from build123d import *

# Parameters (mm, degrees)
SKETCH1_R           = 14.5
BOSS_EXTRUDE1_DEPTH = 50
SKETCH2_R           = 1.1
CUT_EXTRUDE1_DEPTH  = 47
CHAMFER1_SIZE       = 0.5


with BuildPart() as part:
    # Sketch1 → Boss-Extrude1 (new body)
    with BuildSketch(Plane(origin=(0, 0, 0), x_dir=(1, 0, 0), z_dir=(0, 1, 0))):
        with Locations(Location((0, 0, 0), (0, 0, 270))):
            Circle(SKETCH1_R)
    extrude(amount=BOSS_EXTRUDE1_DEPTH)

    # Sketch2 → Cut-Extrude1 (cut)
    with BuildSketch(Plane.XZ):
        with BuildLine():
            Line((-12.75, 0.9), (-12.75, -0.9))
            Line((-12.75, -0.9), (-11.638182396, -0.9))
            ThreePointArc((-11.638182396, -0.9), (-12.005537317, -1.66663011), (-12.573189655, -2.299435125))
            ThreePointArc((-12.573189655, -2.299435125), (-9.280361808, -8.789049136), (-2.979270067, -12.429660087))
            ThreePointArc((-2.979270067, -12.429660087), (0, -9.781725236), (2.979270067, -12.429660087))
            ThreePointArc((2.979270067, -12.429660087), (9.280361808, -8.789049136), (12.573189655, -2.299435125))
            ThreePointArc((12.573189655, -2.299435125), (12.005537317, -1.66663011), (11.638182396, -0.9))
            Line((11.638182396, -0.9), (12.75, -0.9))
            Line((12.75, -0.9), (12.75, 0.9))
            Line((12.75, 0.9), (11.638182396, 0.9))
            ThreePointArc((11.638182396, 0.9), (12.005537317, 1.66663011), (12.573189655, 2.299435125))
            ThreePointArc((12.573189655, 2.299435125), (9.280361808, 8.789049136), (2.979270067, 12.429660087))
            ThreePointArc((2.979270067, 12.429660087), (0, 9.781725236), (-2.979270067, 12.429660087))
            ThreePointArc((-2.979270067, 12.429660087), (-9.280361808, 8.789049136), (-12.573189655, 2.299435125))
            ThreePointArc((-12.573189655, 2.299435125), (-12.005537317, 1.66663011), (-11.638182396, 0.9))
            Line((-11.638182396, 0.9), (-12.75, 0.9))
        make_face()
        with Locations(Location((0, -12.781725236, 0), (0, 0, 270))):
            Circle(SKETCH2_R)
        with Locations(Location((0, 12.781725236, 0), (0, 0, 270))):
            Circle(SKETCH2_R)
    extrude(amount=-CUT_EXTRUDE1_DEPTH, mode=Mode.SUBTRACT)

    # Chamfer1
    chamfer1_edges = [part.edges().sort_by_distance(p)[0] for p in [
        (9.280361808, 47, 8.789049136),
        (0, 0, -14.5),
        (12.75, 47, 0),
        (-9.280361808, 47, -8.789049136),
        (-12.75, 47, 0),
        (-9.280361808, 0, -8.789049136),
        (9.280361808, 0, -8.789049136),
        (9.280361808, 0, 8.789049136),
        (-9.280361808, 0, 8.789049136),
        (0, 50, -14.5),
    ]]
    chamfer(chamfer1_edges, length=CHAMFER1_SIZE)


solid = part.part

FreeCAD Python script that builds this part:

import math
import FreeCAD as App
import Part
import Sketcher

V = App.Vector


def edges_at(feature, points):
    """Names of the edges that pass closest to the given points."""
    edges = feature.Shape.Edges
    near = lambda p: min(range(len(edges)), key=lambda i: edges[i].distToShape(Part.Vertex(*p))[0])
    return sorted({f"Edge{near(p) + 1}" for p in points})

doc = App.newDocument("Part")
params = doc.addObject("Spreadsheet::Sheet", "Params")
for row, (alias, value) in enumerate([
    ("sketch1_diameter", "29 mm"),
    ("pad1_length", "50 mm"),
    ("sketch2_radius", "3 mm"),
    ("sketch2_diameter", "2.2 mm"),
    ("sketch2_height", "1.8 mm"),
    ("pocket1_length", "47 mm"),
    ("chamfer_size", "0.5 mm"),
], start=1):
    params.set(f"A{row}", alias)
    params.set(f"B{row}", "=" + value)
    params.setAlias(f"B{row}", alias)

body = doc.addObject("PartDesign::Body", "Body")

sketch1 = doc.addObject("Sketcher::SketchObject", "Sketch")
body.addObject(sketch1)
sketch1.AttachmentSupport = (doc.XZ_Plane, [""])
sketch1.MapMode = "FlatFace"
sketch1.addGeometry(Part.Circle(V(0, 0, 0), V(0, 0, 1), 14), False)
sketch1.addConstraint([
    Sketcher.Constraint("Coincident", 0, 3, -1, 1),
    Sketcher.Constraint("Diameter", 0, 29.0),
])
sketch1.setExpression("Constraints[1]", "Params.sketch1_diameter")
pad1 = doc.addObject("PartDesign::Pad", "Pad")
body.addObject(pad1)
pad1.Profile = sketch1
pad1.setExpression("Length", "Params.pad1_length")
pad1.Reversed = True

sketch2 = doc.addObject("Sketcher::SketchObject", "Sketch001")
body.addObject(sketch2)
sketch2.AttachmentSupport = (doc.XZ_Plane, [""])
sketch2.MapMode = "FlatFace"
sketch2.addGeometry([
    Part.LineSegment(V(-12.8, 0.9, 0), V(-12.8, -0.9, 0)),
    Part.LineSegment(V(-12.8, -0.9, 0), V(-11.6, -0.9, 0)),
    Part.ArcOfCircle(Part.Circle(V(-14.5, 0, 0), V(0, 0, 1), 3), math.radians(-50), math.radians(-17)),
    Part.ArcOfCircle(Part.Circle(V(0, 0, 0), V(0, 0, 1), 12.8), math.radians(-170), math.radians(-103)),
    Part.ArcOfCircle(Part.Circle(V(0, -12.8, 0), V(0, 0, 1), 3), math.radians(7), math.radians(173)),
    Part.ArcOfCircle(Part.Circle(V(0, 0, 0), V(0, 0, 1), 12.8), math.radians(-77), math.radians(-10)),
    Part.ArcOfCircle(Part.Circle(V(14.5, 0, 0), V(0, 0, 1), 3), math.radians(-163), math.radians(-130)),
    Part.LineSegment(V(11.6, -0.9, 0), V(12.8, -0.9, 0)),
    Part.LineSegment(V(12.8, -0.9, 0), V(12.8, 0.9, 0)),
    Part.LineSegment(V(12.8, 0.9, 0), V(11.6, 0.9, 0)),
    Part.ArcOfCircle(Part.Circle(V(14.5, 0, 0), V(0, 0, 1), 3), math.radians(130), math.radians(163)),
    Part.ArcOfCircle(Part.Circle(V(0, 0, 0), V(0, 0, 1), 12.8), math.radians(10), math.radians(77)),
    Part.ArcOfCircle(Part.Circle(V(0, 12.8, 0), V(0, 0, 1), 3), math.radians(-173), math.radians(-7)),
    Part.ArcOfCircle(Part.Circle(V(0, 0, 0), V(0, 0, 1), 12.8), math.radians(103), math.radians(170)),
    Part.ArcOfCircle(Part.Circle(V(-14.5, 0, 0), V(0, 0, 1), 3), math.radians(17), math.radians(50)),
    Part.LineSegment(V(-11.6, 0.9, 0), V(-12.8, 0.9, 0)),
    Part.Circle(V(0, -12.8, 0), V(0, 0, 1), 1.1),
    Part.Circle(V(0, 12.8, 0), V(0, 0, 1), 1.1),
], False)
sketch2.addConstraint([
    Sketcher.Constraint("Coincident", 0, 2, 1, 1),
    Sketcher.Constraint("Coincident", 1, 2, 2, 2),
    Sketcher.Constraint("Coincident", 2, 1, 3, 1),
    Sketcher.Constraint("Coincident", 3, 2, 4, 2),
    Sketcher.Constraint("Coincident", 4, 1, 5, 1),
    Sketcher.Constraint("Coincident", 5, 2, 6, 2),
    Sketcher.Constraint("Coincident", 6, 1, 7, 1),
    Sketcher.Constraint("Coincident", 7, 2, 8, 1),
    Sketcher.Constraint("Coincident", 8, 2, 9, 1),
    Sketcher.Constraint("Coincident", 9, 2, 10, 2),
    Sketcher.Constraint("Coincident", 10, 1, 11, 1),
    Sketcher.Constraint("Coincident", 11, 2, 12, 2),
    Sketcher.Constraint("Coincident", 12, 1, 13, 1),
    Sketcher.Constraint("Coincident", 13, 2, 14, 2),
    Sketcher.Constraint("Coincident", 14, 1, 15, 1),
    Sketcher.Constraint("Coincident", 15, 2, 0, 1),
    Sketcher.Constraint("Vertical", 0),
    Sketcher.Constraint("Horizontal", 1),
    Sketcher.Constraint("Horizontal", 7),
    Sketcher.Constraint("Vertical", 8),
    Sketcher.Constraint("Horizontal", 9),
    Sketcher.Constraint("Horizontal", 15),
    Sketcher.Constraint("Coincident", 3, 3, -1, 1),
    Sketcher.Constraint("Coincident", 5, 3, -1, 1),
    Sketcher.Constraint("Coincident", 11, 3, -1, 1),
    Sketcher.Constraint("Coincident", 13, 3, -1, 1),
    Sketcher.Constraint("Coincident", 10, 3, 6, 3),
    Sketcher.Constraint("Coincident", 14, 3, 2, 3),
    Sketcher.Constraint("Coincident", 16, 3, 4, 3),
    Sketcher.Constraint("Coincident", 17, 3, 12, 3),
    Sketcher.Constraint("Equal", 2, 4),
    Sketcher.Constraint("Equal", 3, 5),
    Sketcher.Constraint("Equal", 4, 6),
    Sketcher.Constraint("Equal", 6, 10),
    Sketcher.Constraint("Equal", 5, 11),
    Sketcher.Constraint("Equal", 10, 12),
    Sketcher.Constraint("Equal", 11, 13),
    Sketcher.Constraint("Equal", 12, 14),
    Sketcher.Constraint("Equal", 16, 17),
    Sketcher.Constraint("Symmetric", 2, 3, 6, 3, -1, 1),
    Sketcher.Constraint("Symmetric", 4, 3, 12, 3, -1, 1),
    Sketcher.Constraint("Symmetric", 0, 2, 8, 2, -1, 1),
    Sketcher.Constraint("Symmetric", 1, 2, 6, 1, -2),
    Sketcher.Constraint("PointOnObject", 4, 3, -2),
    Sketcher.Constraint("Horizontal", 9, 2, 14, 1),
    Sketcher.Constraint("Radius", 2, 3.0),
    Sketcher.Constraint("Diameter", 16, 2.2),
    Sketcher.Constraint("DistanceY", 0, 2, 0, 1, 1.8),
    Sketcher.Constraint("DistanceX", 2, 3, 6, 3, 29.0),
    Sketcher.Constraint("DistanceX", 0, 2, -1, 1, 12.75),
    Sketcher.Constraint("Radius", 3, 12.781725),
    Sketcher.Constraint("DistanceX", 3, 2, -1, 1, 2.97927),
])
sketch2.setExpression("Constraints[45]", "Params.sketch2_radius")
sketch2.setExpression("Constraints[46]", "Params.sketch2_diameter")
sketch2.setExpression("Constraints[47]", "Params.sketch2_height")
pocket1 = doc.addObject("PartDesign::Pocket", "Pocket")
body.addObject(pocket1)
pocket1.Profile = sketch2
pocket1.setExpression("Length", "Params.pocket1_length")
doc.recompute()

chamfer = doc.addObject("PartDesign::Chamfer", "Chamfer")
body.addObject(chamfer)
chamfer.Base = (pocket1, edges_at(pocket1, [
    (9.28, 47, 8.789),
    (0, 0, -14.5),
    (12.75, 47, 0),
    (-9.28, 47, -8.789),
    (-12.75, 47, 0),
    (-9.28, 0, -8.789),
    (9.28, 0, -8.789),
    (9.28, 0, 8.789),
    (-9.28, 0, 8.789),
    (0, 50, -14.5),
]))
chamfer.setExpression("Size", "Params.chamfer_size")

doc.recompute()
